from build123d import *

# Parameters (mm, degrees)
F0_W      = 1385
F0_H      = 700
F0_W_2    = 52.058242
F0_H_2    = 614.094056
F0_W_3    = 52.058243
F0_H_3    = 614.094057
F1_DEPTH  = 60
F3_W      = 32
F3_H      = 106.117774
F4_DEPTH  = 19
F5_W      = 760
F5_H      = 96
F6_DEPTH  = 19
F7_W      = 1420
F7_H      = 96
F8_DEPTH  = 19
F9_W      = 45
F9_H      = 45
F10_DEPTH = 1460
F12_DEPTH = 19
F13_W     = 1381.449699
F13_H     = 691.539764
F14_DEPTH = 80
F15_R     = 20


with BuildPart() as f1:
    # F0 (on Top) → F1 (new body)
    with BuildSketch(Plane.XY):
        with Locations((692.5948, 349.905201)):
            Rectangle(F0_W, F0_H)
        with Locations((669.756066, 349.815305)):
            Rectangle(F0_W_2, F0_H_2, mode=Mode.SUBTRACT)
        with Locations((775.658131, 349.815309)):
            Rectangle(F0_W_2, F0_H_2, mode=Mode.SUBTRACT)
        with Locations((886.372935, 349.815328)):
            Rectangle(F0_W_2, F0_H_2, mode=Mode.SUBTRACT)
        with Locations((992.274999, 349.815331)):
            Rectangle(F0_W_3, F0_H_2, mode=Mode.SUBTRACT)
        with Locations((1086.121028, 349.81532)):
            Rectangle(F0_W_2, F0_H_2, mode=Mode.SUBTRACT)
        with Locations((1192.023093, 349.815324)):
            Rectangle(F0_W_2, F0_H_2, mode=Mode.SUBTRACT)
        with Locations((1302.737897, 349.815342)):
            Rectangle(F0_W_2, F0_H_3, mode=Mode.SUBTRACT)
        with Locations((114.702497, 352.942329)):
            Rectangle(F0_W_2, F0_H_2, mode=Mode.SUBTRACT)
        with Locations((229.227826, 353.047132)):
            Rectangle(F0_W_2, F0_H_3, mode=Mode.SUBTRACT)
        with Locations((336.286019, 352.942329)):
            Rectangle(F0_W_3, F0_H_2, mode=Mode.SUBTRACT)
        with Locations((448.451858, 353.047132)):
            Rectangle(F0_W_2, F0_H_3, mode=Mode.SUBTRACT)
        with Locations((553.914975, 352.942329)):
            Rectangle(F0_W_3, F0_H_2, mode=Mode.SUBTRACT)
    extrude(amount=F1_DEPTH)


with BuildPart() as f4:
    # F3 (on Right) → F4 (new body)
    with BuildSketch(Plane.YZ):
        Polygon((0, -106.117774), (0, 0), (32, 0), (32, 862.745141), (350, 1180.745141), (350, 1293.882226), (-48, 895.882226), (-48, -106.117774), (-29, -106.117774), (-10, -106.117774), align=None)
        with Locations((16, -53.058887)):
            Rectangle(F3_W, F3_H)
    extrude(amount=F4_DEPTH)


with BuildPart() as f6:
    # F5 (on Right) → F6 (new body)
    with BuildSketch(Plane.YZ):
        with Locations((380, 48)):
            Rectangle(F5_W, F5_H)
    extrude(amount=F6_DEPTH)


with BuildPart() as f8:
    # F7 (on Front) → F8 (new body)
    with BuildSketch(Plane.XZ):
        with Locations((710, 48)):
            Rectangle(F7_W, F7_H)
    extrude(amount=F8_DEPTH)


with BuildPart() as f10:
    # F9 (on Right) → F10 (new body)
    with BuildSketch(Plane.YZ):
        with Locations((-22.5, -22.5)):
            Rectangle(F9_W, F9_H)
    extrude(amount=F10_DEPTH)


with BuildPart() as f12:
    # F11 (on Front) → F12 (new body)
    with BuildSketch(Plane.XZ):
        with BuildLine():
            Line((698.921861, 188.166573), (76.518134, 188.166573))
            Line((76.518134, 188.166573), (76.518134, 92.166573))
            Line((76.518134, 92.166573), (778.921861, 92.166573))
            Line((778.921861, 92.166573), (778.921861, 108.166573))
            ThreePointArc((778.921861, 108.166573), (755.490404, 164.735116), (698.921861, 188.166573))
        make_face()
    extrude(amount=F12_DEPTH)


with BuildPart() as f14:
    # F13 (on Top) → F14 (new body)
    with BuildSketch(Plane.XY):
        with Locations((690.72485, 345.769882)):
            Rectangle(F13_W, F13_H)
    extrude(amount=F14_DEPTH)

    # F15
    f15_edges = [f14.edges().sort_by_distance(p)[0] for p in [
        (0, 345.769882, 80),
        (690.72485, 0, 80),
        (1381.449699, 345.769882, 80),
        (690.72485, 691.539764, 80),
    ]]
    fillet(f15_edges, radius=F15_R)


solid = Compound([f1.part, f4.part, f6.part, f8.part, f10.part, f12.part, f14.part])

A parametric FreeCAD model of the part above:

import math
import FreeCAD as App
import Part
import Sketcher
Q = App.Units.Quantity


def edges_at(feature, points):
    """Names of the edges that pass closest to the given points."""
    edges = feature.Shape.Edges
    near = lambda p: min(range(len(edges)), key=lambda i: edges[i].distToShape(Part.Vertex(*p))[0])
    return sorted({f"Edge{near(p) + 1}" for p in points})

doc = App.newDocument("Part")
body = doc.addObject("PartDesign::Body", "Body")

# Sketch on XY plane
sketch1 = doc.addObject("Sketcher::SketchObject", "Sketch")
body.addObject(sketch1)
sketch1.AttachmentSupport = (doc.XY_Plane, [""])
sketch1.MapMode = "FlatFace"
sketch1.addGeometry(Part.LineSegment(App.Vector(0.0948, 699.905201, 0), App.Vector(0.0948, -0.094799, 0)), False)
sketch1.addGeometry(Part.LineSegment(App.Vector(0.0948, -0.094799, 0), App.Vector(1385.0948, -0.094799, 0)), False)
sketch1.addGeometry(Part.LineSegment(App.Vector(1385.0948, -0.094799, 0), App.Vector(1385.0948, 699.905201, 0)), False)
sketch1.addGeometry(Part.LineSegment(App.Vector(1385.0948, 699.905201, 0), App.Vector(0.0948, 699.905201, 0)), False)
sketch1.addGeometry(Part.LineSegment(App.Vector(695.785187, 42.768277, 0), App.Vector(643.726945, 42.768277, 0)), False)
sketch1.addGeometry(Part.LineSegment(App.Vector(643.726945, 42.768277, 0), App.Vector(643.726945, 656.862333, 0)), False)
sketch1.addGeometry(Part.LineSegment(App.Vector(643.726945, 656.862333, 0), App.Vector(695.785187, 656.862333, 0)), False)
sketch1.addGeometry(Part.LineSegment(App.Vector(695.785187, 656.862333, 0), App.Vector(695.785187, 42.768277, 0)), False)
sketch1.addGeometry(Part.LineSegment(App.Vector(801.687252, 42.768281, 0), App.Vector(749.62901, 42.768281, 0)), False)
sketch1.addGeometry(Part.LineSegment(App.Vector(749.62901, 42.768281, 0), App.Vector(749.62901, 656.862337, 0)), False)
sketch1.addGeometry(Part.LineSegment(App.Vector(749.62901, 656.862337, 0), App.Vector(801.687252, 656.862337, 0)), False)
sketch1.addGeometry(Part.LineSegment(App.Vector(801.687252, 656.862337, 0), App.Vector(801.687252, 42.768281, 0)), False)
sketch1.addGeometry(Part.LineSegment(App.Vector(912.402056, 42.7683, 0), App.Vector(860.343814, 42.7683, 0)), False)
sketch1.addGeometry(Part.LineSegment(App.Vector(860.343814, 42.7683, 0), App.Vector(860.343814, 656.862356, 0)), False)
sketch1.addGeometry(Part.LineSegment(App.Vector(860.343814, 656.862356, 0), App.Vector(912.402056, 656.862356, 0)), False)
sketch1.addGeometry(Part.LineSegment(App.Vector(912.402056, 656.862356, 0), App.Vector(912.402056, 42.7683, 0)), False)
sketch1.addGeometry(Part.LineSegment(App.Vector(1018.30412, 42.768303, 0), App.Vector(966.245878, 42.768303, 0)), False)
sketch1.addGeometry(Part.LineSegment(App.Vector(966.245878, 42.768303, 0), App.Vector(966.245878, 656.862359, 0)), False)
sketch1.addGeometry(Part.LineSegment(App.Vector(966.245878, 656.862359, 0), App.Vector(1018.30412, 656.862359, 0)), False)
sketch1.addGeometry(Part.LineSegment(App.Vector(1018.30412, 656.862359, 0), App.Vector(1018.30412, 42.768303, 0)), False)
sketch1.addGeometry(Part.LineSegment(App.Vector(1112.150149, 42.768292, 0), App.Vector(1060.091907, 42.768292, 0)), False)
sketch1.addGeometry(Part.LineSegment(App.Vector(1060.091907, 42.768292, 0), App.Vector(1060.091907, 656.862348, 0)), False)
sketch1.addGeometry(Part.LineSegment(App.Vector(1060.091907, 656.862348, 0), App.Vector(1112.150149, 656.862348, 0)), False)
sketch1.addGeometry(Part.LineSegment(App.Vector(1112.150149, 656.862348, 0), App.Vector(1112.150149, 42.768292, 0)), False)
sketch1.addGeometry(Part.LineSegment(App.Vector(1218.052214, 42.768296, 0), App.Vector(1165.993972, 42.768296, 0)), False)
sketch1.addGeometry(Part.LineSegment(App.Vector(1165.993972, 42.768296, 0), App.Vector(1165.993972, 656.862352, 0)), False)
sketch1.addGeometry(Part.LineSegment(App.Vector(1165.993972, 656.862352, 0), App.Vector(1218.052214, 656.862352, 0)), False)
sketch1.addGeometry(Part.LineSegment(App.Vector(1218.052214, 656.862352, 0), App.Vector(1218.052214, 42.768296, 0)), False)
sketch1.addGeometry(Part.LineSegment(App.Vector(1328.767018, 42.768313, 0), App.Vector(1276.708776, 42.768313, 0)), False)
sketch1.addGeometry(Part.LineSegment(App.Vector(1276.708776, 42.768313, 0), App.Vector(1276.708776, 656.86237, 0)), False)
sketch1.addGeometry(Part.LineSegment(App.Vector(1276.708776, 656.86237, 0), App.Vector(1328.767018, 656.86237, 0)), False)
sketch1.addGeometry(Part.LineSegment(App.Vector(1328.767018, 656.86237, 0), App.Vector(1328.767018, 42.768313, 0)), False)
sketch1.addGeometry(Part.LineSegment(App.Vector(140.731618, 45.895301, 0), App.Vector(88.673376, 45.895301, 0)), False)
sketch1.addGeometry(Part.LineSegment(App.Vector(88.673376, 45.895301, 0), App.Vector(88.673376, 659.989357, 0)), False)
sketch1.addGeometry(Part.LineSegment(App.Vector(88.673376, 659.989357, 0), App.Vector(140.731618, 659.989357, 0)), False)
sketch1.addGeometry(Part.LineSegment(App.Vector(140.731618, 659.989357, 0), App.Vector(140.731618, 45.895301, 0)), False)
sketch1.addGeometry(Part.LineSegment(App.Vector(255.256947, 46.000104, 0), App.Vector(203.198705, 46.000104, 0)), False)
sketch1.addGeometry(Part.LineSegment(App.Vector(203.198705, 46.000104, 0), App.Vector(203.198705, 660.094161, 0)), False)
sketch1.addGeometry(Part.LineSegment(App.Vector(203.198705, 660.094161, 0), App.Vector(255.256947, 660.094161, 0)), False)
sketch1.addGeometry(Part.LineSegment(App.Vector(255.256947, 660.094161, 0), App.Vector(255.256947, 46.000104, 0)), False)
sketch1.addGeometry(Part.LineSegment(App.Vector(362.31514, 45.895301, 0), App.Vector(310.256897, 45.895301, 0)), False)
sketch1.addGeometry(Part.LineSegment(App.Vector(310.256897, 45.895301, 0), App.Vector(310.256897, 659.989357, 0)), False)
sketch1.addGeometry(Part.LineSegment(App.Vector(310.256897, 659.989357, 0), App.Vector(362.31514, 659.989357, 0)), False)
sketch1.addGeometry(Part.LineSegment(App.Vector(362.31514, 659.989357, 0), App.Vector(362.31514, 45.895301, 0)), False)
sketch1.addGeometry(Part.LineSegment(App.Vector(474.480979, 46.000104, 0), App.Vector(422.422737, 46.000104, 0)), False)
sketch1.addGeometry(Part.LineSegment(App.Vector(422.422737, 46.000104, 0), App.Vector(422.422737, 660.094161, 0)), False)
sketch1.addGeometry(Part.LineSegment(App.Vector(422.422737, 660.094161, 0), App.Vector(474.480979, 660.094161, 0)), False)
sketch1.addGeometry(Part.LineSegment(App.Vector(474.480979, 660.094161, 0), App.Vector(474.480979, 46.000104, 0)), False)
sketch1.addGeometry(Part.LineSegment(App.Vector(579.944097, 45.895301, 0), App.Vector(527.885854, 45.895301, 0)), False)
sketch1.addGeometry(Part.LineSegment(App.Vector(527.885854, 45.895301, 0), App.Vector(527.885854, 659.989357, 0)), False)
sketch1.addGeometry(Part.LineSegment(App.Vector(527.885854, 659.989357, 0), App.Vector(579.944097, 659.989357, 0)), False)
sketch1.addGeometry(Part.LineSegment(App.Vector(579.944097, 659.989357, 0), App.Vector(579.944097, 45.895301, 0)), False)
sketch1.addConstraint(Sketcher.Constraint("Coincident", 0, 2, 1, 1))
sketch1.addConstraint(Sketcher.Constraint("Coincident", 1, 2, 2, 1))
sketch1.addConstraint(Sketcher.Constraint("Coincident", 2, 2, 3, 1))
sketch1.addConstraint(Sketcher.Constraint("Coincident", 3, 2, 0, 1))
sketch1.addConstraint(Sketcher.Constraint("Coincident", 4, 2, 5, 1))
sketch1.addConstraint(Sketcher.Constraint("Coincident", 5, 2, 6, 1))
sketch1.addConstraint(Sketcher.Constraint("Coincident", 6, 2, 7, 1))
sketch1.addConstraint(Sketcher.Constraint("Coincident", 7, 2, 4, 1))
sketch1.addConstraint(Sketcher.Constraint("Coincident", 8, 2, 9, 1))
sketch1.addConstraint(Sketcher.Constraint("Coincident", 9, 2, 10, 1))
sketch1.addConstraint(Sketcher.Constraint("Coincident", 10, 2, 11, 1))
sketch1.addConstraint(Sketcher.Constraint("Coincident", 11, 2, 8, 1))
sketch1.addConstraint(Sketcher.Constraint("Coincident", 12, 2, 13, 1))
sketch1.addConstraint(Sketcher.Constraint("Coincident", 13, 2, 14, 1))
sketch1.addConstraint(Sketcher.Constraint("Coincident", 14, 2, 15, 1))
sketch1.addConstraint(Sketcher.Constraint("Coincident", 15, 2, 12, 1))
sketch1.addConstraint(Sketcher.Constraint("Coincident", 16, 2, 17, 1))
sketch1.addConstraint(Sketcher.Constraint("Coincident", 17, 2, 18, 1))
sketch1.addConstraint(Sketcher.Constraint("Coincident", 18, 2, 19, 1))
sketch1.addConstraint(Sketcher.Constraint("Coincident", 19, 2, 16, 1))
sketch1.addConstraint(Sketcher.Constraint("Coincident", 20, 2, 21, 1))
sketch1.addConstraint(Sketcher.Constraint("Coincident", 21, 2, 22, 1))
sketch1.addConstraint(Sketcher.Constraint("Coincident", 22, 2, 23, 1))
sketch1.addConstraint(Sketcher.Constraint("Coincident", 23, 2, 20, 1))
sketch1.addConstraint(Sketcher.Constraint("Coincident", 24, 2, 25, 1))
sketch1.addConstraint(Sketcher.Constraint("Coincident", 25, 2, 26, 1))
sketch1.addConstraint(Sketcher.Constraint("Coincident", 26, 2, 27, 1))
sketch1.addConstraint(Sketcher.Constraint("Coincident", 27, 2, 24, 1))
sketch1.addConstraint(Sketcher.Constraint("Coincident", 28, 2, 29, 1))
sketch1.addConstraint(Sketcher.Constraint("Coincident", 29, 2, 30, 1))
sketch1.addConstraint(Sketcher.Constraint("Coincident", 30, 2, 31, 1))
sketch1.addConstraint(Sketcher.Constraint("Coincident", 31, 2, 28, 1))
sketch1.addConstraint(Sketcher.Constraint("Coincident", 32, 2, 33, 1))
sketch1.addConstraint(Sketcher.Constraint("Coincident", 33, 2, 34, 1))
sketch1.addConstraint(Sketcher.Constraint("Coincident", 34, 2, 35, 1))
sketch1.addConstraint(Sketcher.Constraint("Coincident", 35, 2, 32, 1))
sketch1.addConstraint(Sketcher.Constraint("Coincident", 36, 2, 37, 1))
sketch1.addConstraint(Sketcher.Constraint("Coincident", 37, 2, 38, 1))
sketch1.addConstraint(Sketcher.Constraint("Coincident", 38, 2, 39, 1))
sketch1.addConstraint(Sketcher.Constraint("Coincident", 39, 2, 36, 1))
sketch1.addConstraint(Sketcher.Constraint("Coincident", 40, 2, 41, 1))
sketch1.addConstraint(Sketcher.Constraint("Coincident", 41, 2, 42, 1))
sketch1.addConstraint(Sketcher.Constraint("Coincident", 42, 2, 43, 1))
sketch1.addConstraint(Sketcher.Constraint("Coincident", 43, 2, 40, 1))
sketch1.addConstraint(Sketcher.Constraint("Coincident", 44, 2, 45, 1))
sketch1.addConstraint(Sketcher.Constraint("Coincident", 45, 2, 46, 1))
sketch1.addConstraint(Sketcher.Constraint("Coincident", 46, 2, 47, 1))
sketch1.addConstraint(Sketcher.Constraint("Coincident", 47, 2, 44, 1))
sketch1.addConstraint(Sketcher.Constraint("Coincident", 48, 2, 49, 1))
sketch1.addConstraint(Sketcher.Constraint("Coincident", 49, 2, 50, 1))
sketch1.addConstraint(Sketcher.Constraint("Coincident", 50, 2, 51, 1))
sketch1.addConstraint(Sketcher.Constraint("Coincident", 51, 2, 48, 1))
sketch1.addConstraint(Sketcher.Constraint("Vertical", 0))
sketch1.addConstraint(Sketcher.Constraint("Horizontal", 1))
sketch1.addConstraint(Sketcher.Constraint("Vertical", 2))
sketch1.addConstraint(Sketcher.Constraint("Horizontal", 3))
sketch1.addConstraint(Sketcher.Constraint("Horizontal", 4))
sketch1.addConstraint(Sketcher.Constraint("Vertical", 5))
sketch1.addConstraint(Sketcher.Constraint("Horizontal", 6))
sketch1.addConstraint(Sketcher.Constraint("Vertical", 7))
sketch1.addConstraint(Sketcher.Constraint("Horizontal", 8))
sketch1.addConstraint(Sketcher.Constraint("Vertical", 9))
sketch1.addConstraint(Sketcher.Constraint("Horizontal", 10))
sketch1.addConstraint(Sketcher.Constraint("Vertical", 11))
sketch1.addConstraint(Sketcher.Constraint("Horizontal", 12))
sketch1.addConstraint(Sketcher.Constraint("Vertical", 13))
sketch1.addConstraint(Sketcher.Constraint("Horizontal", 14))
sketch1.addConstraint(Sketcher.Constraint("Vertical", 15))
sketch1.addConstraint(Sketcher.Constraint("Horizontal", 16))
sketch1.addConstraint(Sketcher.Constraint("Vertical", 17))
sketch1.addConstraint(Sketcher.Constraint("Horizontal", 18))
sketch1.addConstraint(Sketcher.Constraint("Vertical", 19))
sketch1.addConstraint(Sketcher.Constraint("Horizontal", 20))
sketch1.addConstraint(Sketcher.Constraint("Vertical", 21))
sketch1.addConstraint(Sketcher.Constraint("Horizontal", 22))
sketch1.addConstraint(Sketcher.Constraint("Vertical", 23))
sketch1.addConstraint(Sketcher.Constraint("Horizontal", 24))
sketch1.addConstraint(Sketcher.Constraint("Vertical", 25))
sketch1.addConstraint(Sketcher.Constraint("Horizontal", 26))
sketch1.addConstraint(Sketcher.Constraint("Vertical", 27))
sketch1.addConstraint(Sketcher.Constraint("Horizontal", 28))
sketch1.addConstraint(Sketcher.Constraint("Vertical", 29))
sketch1.addConstraint(Sketcher.Constraint("Horizontal", 30))
sketch1.addConstraint(Sketcher.Constraint("Vertical", 31))
sketch1.addConstraint(Sketcher.Constraint("Horizontal", 32))
sketch1.addConstraint(Sketcher.Constraint("Vertical", 33))
sketch1.addConstraint(Sketcher.Constraint("Horizontal", 34))
sketch1.addConstraint(Sketcher.Constraint("Vertical", 35))
sketch1.addConstraint(Sketcher.Constraint("Horizontal", 36))
sketch1.addConstraint(Sketcher.Constraint("Vertical", 37))
sketch1.addConstraint(Sketcher.Constraint("Horizontal", 38))
sketch1.addConstraint(Sketcher.Constraint("Vertical", 39))
sketch1.addConstraint(Sketcher.Constraint("Horizontal", 40))
sketch1.addConstraint(Sketcher.Constraint("Vertical", 41))
sketch1.addConstraint(Sketcher.Constraint("Horizontal", 42))
sketch1.addConstraint(Sketcher.Constraint("Vertical", 43))
sketch1.addConstraint(Sketcher.Constraint("Horizontal", 44))
sketch1.addConstraint(Sketcher.Constraint("Vertical", 45))
sketch1.addConstraint(Sketcher.Constraint("Horizontal", 46))
sketch1.addConstraint(Sketcher.Constraint("Vertical", 47))
sketch1.addConstraint(Sketcher.Constraint("Horizontal", 48))
sketch1.addConstraint(Sketcher.Constraint("Vertical", 49))
sketch1.addConstraint(Sketcher.Constraint("Horizontal", 50))
sketch1.addConstraint(Sketcher.Constraint("Vertical", 51))
sketch1.addConstraint(Sketcher.Constraint("Horizontal", 35, 2, 40, 2))
sketch1.addConstraint(Sketcher.Constraint("Horizontal", 34, 2, 41, 2))
sketch1.addConstraint(Sketcher.Constraint("Horizontal", 39, 2, 44, 2))
sketch1.addConstraint(Sketcher.Constraint("Horizontal", 38, 2, 45, 2))
sketch1.addConstraint(Sketcher.Constraint("Horizontal", 43, 2, 48, 2))
sketch1.addConstraint(Sketcher.Constraint("Horizontal", 42, 2, 49, 2))
sketch1.addConstraint(Sketcher.Constraint("Equal", 6, 8))
sketch1.addConstraint(Sketcher.Constraint("Equal", 10, 12))
sketch1.addConstraint(Sketcher.Constraint("Equal", 14, 16))
sketch1.addConstraint(Sketcher.Constraint("Equal", 18, 20))
sketch1.addConstraint(Sketcher.Constraint("Equal", 22, 24))
sketch1.addConstraint(Sketcher.Constraint("Equal", 26, 28))
sketch1.addConstraint(Sketcher.Constraint("Equal", 30, 32))
sketch1.addConstraint(Sketcher.Constraint("Equal", 34, 36))
sketch1.addConstraint(Sketcher.Constraint("Equal", 38, 40))
sketch1.addConstraint(Sketcher.Constraint("Equal", 42, 44))
sketch1.addConstraint(Sketcher.Constraint("Equal", 46, 48))
sketch1.addConstraint(Sketcher.Constraint("Equal", 7, 9))
sketch1.addConstraint(Sketcher.Constraint("Equal", 11, 13))
sketch1.addConstraint(Sketcher.Constraint("Equal", 15, 17))
sketch1.addConstraint(Sketcher.Constraint("Equal", 19, 21))
sketch1.addConstraint(Sketcher.Constraint("Equal", 23, 25))
sketch1.addConstraint(Sketcher.Constraint("Equal", 27, 29))
sketch1.addConstraint(Sketcher.Constraint("Equal", 31, 33))
sketch1.addConstraint(Sketcher.Constraint("Equal", 35, 37))
sketch1.addConstraint(Sketcher.Constraint("DistanceX", 1, 1, 1, 2, Q("1385 mm")))
sketch1.addConstraint(Sketcher.Constraint("DistanceY", 0, 2, 0, 1, Q("700 mm")))
sketch1.addConstraint(Sketcher.Constraint("DistanceX", 38, 2, 5, 2, Q("388.469998 mm")))
sketch1.addConstraint(Sketcher.Constraint("DistanceX", 4, 2, 4, 1, Q("52.058242 mm")))
sketch1.addConstraint(Sketcher.Constraint("DistanceX", -1, 1, 0, 2, Q("0.0948 mm")))
sketch1.addConstraint(Sketcher.Constraint("DistanceY", 0, 2, -1, 1, Q("0.094799 mm")))
sketch1.addConstraint(Sketcher.Constraint("DistanceY", -1, 1, 12, 2, Q("42.7683 mm")))
sketch1.addConstraint(Sketcher.Constraint("DistanceY", -1, 1, 32, 2, Q("45.895301 mm")))
sketch1.addConstraint(Sketcher.Constraint("DistanceY", 5, 1, 5, 2, Q("614.094056 mm")))
sketch1.addConstraint(Sketcher.Constraint("DistanceX", -1, 1, 8, 2, Q("749.62901 mm")))
sketch1.addConstraint(Sketcher.Constraint("DistanceY", -1, 1, 8, 2, Q("42.768281 mm")))
sketch1.addConstraint(Sketcher.Constraint("DistanceY", -1, 1, 17, 2, Q("656.862359 mm")))
sketch1.addConstraint(Sketcher.Constraint("DistanceX", -1, 1, 18, 2, Q("1018.30412 mm")))
sketch1.addConstraint(Sketcher.Constraint("DistanceY", -1, 1, 21, 2, Q("656.862348 mm")))
sketch1.addConstraint(Sketcher.Constraint("DistanceX", -1, 1, 22, 2, Q("1112.150149 mm")))
sketch1.addConstraint(Sketcher.Constraint("DistanceX", -1, 1, 24, 2, Q("1165.993972 mm")))
sketch1.addConstraint(Sketcher.Constraint("DistanceY", -1, 1, 25, 2, Q("656.862352 mm")))
sketch1.addConstraint(Sketcher.Constraint("DistanceY", -1, 1, 29, 2, Q("656.86237 mm")))
sketch1.addConstraint(Sketcher.Constraint("DistanceX", -1, 1, 30, 2, Q("1328.767018 mm")))
sketch1.addConstraint(Sketcher.Constraint("DistanceX", -1, 1, 34, 2, Q("140.731618 mm")))
sketch1.addConstraint(Sketcher.Constraint("DistanceY", -1, 1, 37, 2, Q("660.094161 mm")))
sketch1.addConstraint(Sketcher.Constraint("DistanceX", -1, 1, 42, 2, Q("362.31514 mm")))
sketch1.addConstraint(Sketcher.Constraint("DistanceX", -1, 1, 46, 2, Q("474.480979 mm")))
sketch1.addConstraint(Sketcher.Constraint("DistanceY", 0, 2, 5, 2, Q("656.957132 mm")))
sketch1.addConstraint(Sketcher.Constraint("DistanceX", 4, 2, 12, 2, Q("216.616869 mm")))
sketch1.addConstraint(Sketcher.Constraint("DistanceX", 15, 2, 16, 2, Q("53.843821 mm")))
sketch1.addConstraint(Sketcher.Constraint("DistanceX", 48, 2, 4, 2, Q("115.841091 mm")))
pad1 = doc.addObject("PartDesign::Pad", "Pad")
body.addObject(pad1)
pad1.Profile = sketch1
pad1.Length = 60
body2 = doc.addObject("PartDesign::Body", "Body001")

# Sketch on YZ plane
sketch2 = doc.addObject("Sketcher::SketchObject", "Sketch001")
body2.addObject(sketch2)
sketch2.AttachmentSupport = (doc.getObject("YZ_Plane001"), [""])
sketch2.MapMode = "FlatFace"
sketch2.addGeometry(Part.LineSegment(App.Vector(32, 862.745141, 0), App.Vector(350, 1180.745141, 0)), False)
sketch2.addGeometry(Part.LineSegment(App.Vector(350, 1180.745141, 0), App.Vector(350, 1293.882226, 0)), False)
sketch2.addGeometry(Part.LineSegment(App.Vector(350, 1293.882226, 0), App.Vector(-48, 895.882226, 0)), False)
sketch2.addGeometry(Part.LineSegment(App.Vector(-48, 895.882226, 0), App.Vector(-48, -106.117774, 0)), False)
sketch2.addGeometry(Part.LineSegment(App.Vector(-48, -106.117774, 0), App.Vector(32, -106.117774, 0)), False)
sketch2.addGeometry(Part.LineSegment(App.Vector(32, -106.117774, 0), App.Vector(32, 862.745141, 0)), False)
sketch2.addConstraint(Sketcher.Constraint("Coincident", 0, 2, 1, 1))
sketch2.addConstraint(Sketcher.Constraint("Coincident", 1, 2, 2, 1))
sketch2.addConstraint(Sketcher.Constraint("Coincident", 2, 2, 3, 1))
sketch2.addConstraint(Sketcher.Constraint("Coincident", 3, 2, 4, 1))
sketch2.addConstraint(Sketcher.Constraint("Coincident", 4, 2, 5, 1))
sketch2.addConstraint(Sketcher.Constraint("Coincident", 5, 2, 0, 1))
sketch2.addConstraint(Sketcher.Constraint("Vertical", 1))
sketch2.addConstraint(Sketcher.Constraint("Vertical", 3))
sketch2.addConstraint(Sketcher.Constraint("Horizontal", 4))
sketch2.addConstraint(Sketcher.Constraint("Vertical", 5))
sketch2.addConstraint(Sketcher.Constraint("Parallel", 0, 2))
sketch2.addConstraint(Sketcher.Constraint("DistanceX", 4, 1, 4, 2, Q("80 mm")))
sketch2.addConstraint(Sketcher.Constraint("DistanceY", 3, 2, 3, 1, Q("1002 mm")))
sketch2.addConstraint(Sketcher.Constraint("Angle", 0, Q("45 deg")))
sketch2.addConstraint(Sketcher.Constraint("DistanceX", -1, 1, 0, 2, Q("350 mm")))
sketch2.addConstraint(Sketcher.Constraint("DistanceX", 2, 2, -1, 1, Q("48 mm")))
sketch2.addConstraint(Sketcher.Constraint("DistanceY", 1, 1, 1, 2, Q("113.137085 mm")))
sketch2.addConstraint(Sketcher.Constraint("DistanceY", -1, 1, 0, 2, Q("1180.745141 mm")))
pad2 = doc.addObject("PartDesign::Pad", "Pad001")
body2.addObject(pad2)
pad2.Profile = sketch2
pad2.Length = 19
body3 = doc.addObject("PartDesign::Body", "Body002")

# Sketch on YZ plane
sketch3 = doc.addObject("Sketcher::SketchObject", "Sketch002")
body3.addObject(sketch3)
sketch3.AttachmentSupport = (doc.getObject("YZ_Plane002"), [""])
sketch3.MapMode = "FlatFace"
sketch3.addGeometry(Part.LineSegment(App.Vector(0, 96, 0), App.Vector(0, 0, 0)), False)
sketch3.addGeometry(Part.LineSegment(App.Vector(0, 0, 0), App.Vector(760, 0, 0)), False)
sketch3.addGeometry(Part.LineSegment(App.Vector(760, 0, 0), App.Vector(760, 96, 0)), False)
sketch3.addGeometry(Part.LineSegment(App.Vector(760, 96, 0), App.Vector(0, 96, 0)), False)
sketch3.addConstraint(Sketcher.Constraint("Coincident", 0, 2, 1, 1))
sketch3.addConstraint(Sketcher.Constraint("Coincident", 1, 2, 2, 1))
sketch3.addConstraint(Sketcher.Constraint("Coincident", 2, 2, 3, 1))
sketch3.addConstraint(Sketcher.Constraint("Coincident", 3, 2, 0, 1))
sketch3.addConstraint(Sketcher.Constraint("Vertical", 0))
sketch3.addConstraint(Sketcher.Constraint("Horizontal", 1))
sketch3.addConstraint(Sketcher.Constraint("Vertical", 2))
sketch3.addConstraint(Sketcher.Constraint("Horizontal", 3))
sketch3.addConstraint(Sketcher.Constraint("Coincident", 0, 2, -1, 1))
sketch3.addConstraint(Sketcher.Constraint("DistanceX", 1, 1, 1, 2, Q("760 mm")))
sketch3.addConstraint(Sketcher.Constraint("DistanceY", 0, 2, 0, 1, Q("96 mm")))
pad3 = doc.addObject("PartDesign::Pad", "Pad002")
body3.addObject(pad3)
pad3.Profile = sketch3
pad3.Length = 19
body4 = doc.addObject("PartDesign::Body", "Body003")

# Sketch on XZ plane
sketch4 = doc.addObject("Sketcher::SketchObject", "Sketch003")
body4.addObject(sketch4)
sketch4.AttachmentSupport = (doc.getObject("XZ_Plane003"), [""])
sketch4.MapMode = "FlatFace"
sketch4.addGeometry(Part.LineSegment(App.Vector(0, 96, 0), App.Vector(0, 0, 0)), False)
sketch4.addGeometry(Part.LineSegment(App.Vector(0, 0, 0), App.Vector(1420, 0, 0)), False)
sketch4.addGeometry(Part.LineSegment(App.Vector(1420, 0, 0), App.Vector(1420, 96, 0)), False)
sketch4.addGeometry(Part.LineSegment(App.Vector(1420, 96, 0), App.Vector(0, 96, 0)), False)
sketch4.addConstraint(Sketcher.Constraint("Coincident", 0, 2, 1, 1))
sketch4.addConstraint(Sketcher.Constraint("Coincident", 1, 2, 2, 1))
sketch4.addConstraint(Sketcher.Constraint("Coincident", 2, 2, 3, 1))
sketch4.addConstraint(Sketcher.Constraint("Coincident", 3, 2, 0, 1))
sketch4.addConstraint(Sketcher.Constraint("Vertical", 0))
sketch4.addConstraint(Sketcher.Constraint("Horizontal", 1))
sketch4.addConstraint(Sketcher.Constraint("Vertical", 2))
sketch4.addConstraint(Sketcher.Constraint("Horizontal", 3))
sketch4.addConstraint(Sketcher.Constraint("Coincident", 0, 2, -1, 1))
sketch4.addConstraint(Sketcher.Constraint("DistanceX", 1, 1, 1, 2, Q("1420 mm")))
sketch4.addConstraint(Sketcher.Constraint("DistanceY", 0, 2, 0, 1, Q("96 mm")))
pad4 = doc.addObject("PartDesign::Pad", "Pad003")
body4.addObject(pad4)
pad4.Profile = sketch4
pad4.Length = 19
body5 = doc.addObject("PartDesign::Body", "Body004")

# Sketch on YZ plane
sketch5 = doc.addObject("Sketcher::SketchObject", "Sketch004")
body5.addObject(sketch5)
sketch5.AttachmentSupport = (doc.getObject("YZ_Plane004"), [""])
sketch5.MapMode = "FlatFace"
sketch5.addGeometry(Part.LineSegment(App.Vector(-45, 0, 0), App.Vector(-45, -45, 0)), False)
sketch5.addGeometry(Part.LineSegment(App.Vector(-45, -45, 0), App.Vector(0, -45, 0)), False)
sketch5.addGeometry(Part.LineSegment(App.Vector(0, -45, 0), App.Vector(0, 0, 0)), False)
sketch5.addGeometry(Part.LineSegment(App.Vector(0, 0, 0), App.Vector(-45, 0, 0)), False)
sketch5.addConstraint(Sketcher.Constraint("Coincident", 0, 2, 1, 1))
sketch5.addConstraint(Sketcher.Constraint("Coincident", 1, 2, 2, 1))
sketch5.addConstraint(Sketcher.Constraint("Coincident", 2, 2, 3, 1))
sketch5.addConstraint(Sketcher.Constraint("Coincident", 3, 2, 0, 1))
sketch5.addConstraint(Sketcher.Constraint("Vertical", 0))
sketch5.addConstraint(Sketcher.Constraint("Horizontal", 1))
sketch5.addConstraint(Sketcher.Constraint("Vertical", 2))
sketch5.addConstraint(Sketcher.Constraint("Horizontal", 3))
sketch5.addConstraint(Sketcher.Constraint("Coincident", 2, 2, -1, 1))
sketch5.addConstraint(Sketcher.Constraint("Equal", 3, 0))
sketch5.addConstraint(Sketcher.Constraint("DistanceX", 1, 1, 1, 2, Q("45 mm")))
pad5 = doc.addObject("PartDesign::Pad", "Pad004")
body5.addObject(pad5)
pad5.Profile = sketch5
pad5.Length = 1460
body6 = doc.addObject("PartDesign::Body", "Body005")

# Sketch on XZ plane
sketch6 = doc.addObject("Sketcher::SketchObject", "Sketch005")
body6.addObject(sketch6)
sketch6.AttachmentSupport = (doc.getObject("XZ_Plane005"), [""])
sketch6.MapMode = "FlatFace"
sketch6.addGeometry(Part.LineSegment(App.Vector(698.921861, 188.166573, 0), App.Vector(76.518134, 188.166573, 0)), False)
sketch6.addGeometry(Part.LineSegment(App.Vector(76.518134, 188.166573, 0), App.Vector(76.518134, 92.166573, 0)), False)
sketch6.addGeometry(Part.LineSegment(App.Vector(76.518134, 92.166573, 0), App.Vector(778.921861, 92.166573, 0)), False)
sketch6.addGeometry(Part.LineSegment(App.Vector(778.921861, 92.166573, 0), App.Vector(778.921861, 108.166573, 0)), False)
sketch6.addGeometry(Part.ArcOfCircle(Part.Circle(App.Vector(698.921863, 108.166575, 0), App.Vector(0, 0, 1), 79.999998), math.radians(-0.000001), math.radians(90.000001)), False)
sketch6.addConstraint(Sketcher.Constraint("Coincident", 0, 2, 1, 1))
sketch6.addConstraint(Sketcher.Constraint("Coincident", 1, 2, 2, 1))
sketch6.addConstraint(Sketcher.Constraint("Coincident", 2, 2, 3, 1))
sketch6.addConstraint(Sketcher.Constraint("Tangent", 3, 2, 4, 1))
sketch6.addConstraint(Sketcher.Constraint("Tangent", 4, 2, 0, 1))
sketch6.addConstraint(Sketcher.Constraint("Horizontal", 0))
sketch6.addConstraint(Sketcher.Constraint("Vertical", 1))
sketch6.addConstraint(Sketcher.Constraint("Horizontal", 2))
sketch6.addConstraint(Sketcher.Constraint("Vertical", 3))
sketch6.addConstraint(Sketcher.Constraint("Radius", 4, Q("79.999998 mm")))
sketch6.addConstraint(Sketcher.Constraint("DistanceY", 1, 2, 1, 1, Q("96 mm")))
sketch6.addConstraint(Sketcher.Constraint("DistanceX", 0, 2, 0, 1, Q("622.403727 mm")))
sketch6.addConstraint(Sketcher.Constraint("DistanceX", -1, 1, 2, 2, Q("778.921861 mm")))
sketch6.addConstraint(Sketcher.Constraint("DistanceY", -1, 1, 4, 3, Q("108.166575 mm")))
pad6 = doc.addObject("PartDesign::Pad", "Pad005")
body6.addObject(pad6)
pad6.Profile = sketch6
pad6.Length = 19
body7 = doc.addObject("PartDesign::Body", "Body006")

# Sketch on XY plane
sketch7 = doc.addObject("Sketcher::SketchObject", "Sketch006")
body7.addObject(sketch7)
sketch7.AttachmentSupport = (doc.getObject("XY_Plane006"), [""])
sketch7.MapMode = "FlatFace"
sketch7.addGeometry(Part.LineSegment(App.Vector(0, 691.539764, 0), App.Vector(0, 0, 0)), False)
sketch7.addGeometry(Part.LineSegment(App.Vector(0, 0, 0), App.Vector(1381.449699, 0, 0)), False)
sketch7.addGeometry(Part.LineSegment(App.Vector(1381.449699, 0, 0), App.Vector(1381.449699, 691.539764, 0)), False)
sketch7.addGeometry(Part.LineSegment(App.Vector(1381.449699, 691.539764, 0), App.Vector(0, 691.539764, 0)), False)
sketch7.addConstraint(Sketcher.Constraint("Coincident", 0, 2, 1, 1))
sketch7.addConstraint(Sketcher.Constraint("Coincident", 1, 2, 2, 1))
sketch7.addConstraint(Sketcher.Constraint("Coincident", 2, 2, 3, 1))
sketch7.addConstraint(Sketcher.Constraint("Coincident", 3, 2, 0, 1))
sketch7.addConstraint(Sketcher.Constraint("Vertical", 0))
sketch7.addConstraint(Sketcher.Constraint("Horizontal", 1))
sketch7.addConstraint(Sketcher.Constraint("Vertical", 2))
sketch7.addConstraint(Sketcher.Constraint("Horizontal", 3))
sketch7.addConstraint(Sketcher.Constraint("Coincident", 0, 2, -1, 1))
sketch7.addConstraint(Sketcher.Constraint("DistanceX", 1, 1, 1, 2, Q("1381.449699 mm")))
sketch7.addConstraint(Sketcher.Constraint("DistanceY", 0, 2, 0, 1, Q("691.539764 mm")))
pad7 = doc.addObject("PartDesign::Pad", "Pad006")
body7.addObject(pad7)
pad7.Profile = sketch7
pad7.Length = 80
doc.recompute()

fillet = doc.addObject("PartDesign::Fillet", "Fillet")
body7.addObject(fillet)
fillet.Base = (pad7, edges_at(pad7, [
    (0, 345.77, 80),
    (690.725, 0, 80),
    (1381.45, 345.77, 80),
    (690.725, 691.54, 80),
]))
fillet.Radius = 20

doc.recompute()
